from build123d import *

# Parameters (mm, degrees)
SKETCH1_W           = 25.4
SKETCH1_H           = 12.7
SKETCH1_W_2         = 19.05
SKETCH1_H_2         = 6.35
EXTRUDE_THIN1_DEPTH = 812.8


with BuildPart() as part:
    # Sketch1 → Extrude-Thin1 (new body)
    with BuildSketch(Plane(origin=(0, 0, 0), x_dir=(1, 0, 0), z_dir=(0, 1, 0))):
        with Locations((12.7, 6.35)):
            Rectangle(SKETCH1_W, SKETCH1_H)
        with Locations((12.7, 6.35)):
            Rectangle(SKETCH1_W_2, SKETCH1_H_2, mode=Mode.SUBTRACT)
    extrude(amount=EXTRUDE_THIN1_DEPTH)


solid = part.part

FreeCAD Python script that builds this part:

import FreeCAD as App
import Part
import Sketcher

V = App.Vector
Q = App.Units.Quantity

doc = App.newDocument("Part")
params = doc.addObject("Spreadsheet::Sheet", "Params")
for row, (alias, value) in enumerate([
    ("sketch1_width", "1 in"),
    ("sketch1_height", "0.5 in"),
    ("sketch1_width2", "0.75 in"),
    ("sketch1_height2", "0.25 in"),
    ("pad1_length", "32 in"),
], start=1):
    params.set(f"A{row}", alias)
    params.set(f"B{row}", "=" + value)
    params.setAlias(f"B{row}", alias)

body = doc.addObject("PartDesign::Body", "Body")

sketch1 = body.newObject("Sketcher::SketchObject", "Sketch")
sketch1.AttachmentSupport = (doc.getObject("XZ_Plane"), [""])
sketch1.MapMode = "FlatFace"
sketch1.addGeometry([
    Part.LineSegment(V(0, -13, 0), V(0, 0, 0)),
    Part.LineSegment(V(0, 0, 0), V(25, 0, 0)),
    Part.LineSegment(V(25, 0, 0), V(25, -13, 0)),
    Part.LineSegment(V(25, -13, 0), V(0, -13, 0)),
    Part.LineSegment(V(22, -3, 0), V(3, -3, 0)),
    Part.LineSegment(V(3, -3, 0), V(3, -10, 0)),
    Part.LineSegment(V(3, -10, 0), V(22, -10, 0)),
    Part.LineSegment(V(22, -10, 0), V(22, -3, 0)),
], False)
sketch1.addConstraint([
    Sketcher.Constraint("Coincident", 0, 2, 1, 1),
    Sketcher.Constraint("Coincident", 1, 2, 2, 1),
    Sketcher.Constraint("Coincident", 2, 2, 3, 1),
    Sketcher.Constraint("Coincident", 3, 2, 0, 1),
    Sketcher.Constraint("Coincident", 4, 2, 5, 1),
    Sketcher.Constraint("Coincident", 5, 2, 6, 1),
    Sketcher.Constraint("Coincident", 6, 2, 7, 1),
    Sketcher.Constraint("Coincident", 7, 2, 4, 1),
    Sketcher.Constraint("Vertical", 0),
    Sketcher.Constraint("Horizontal", 1),
    Sketcher.Constraint("Vertical", 2),
    Sketcher.Constraint("Horizontal", 3),
    Sketcher.Constraint("Horizontal", 4),
    Sketcher.Constraint("Vertical", 5),
    Sketcher.Constraint("Horizontal", 6),
    Sketcher.Constraint("Vertical", 7),
    Sketcher.Constraint("Coincident", 0, 2, -1, 1),
    Sketcher.Constraint("DistanceX", 1, 1, 1, 2, Q("1 in")),
    Sketcher.Constraint("DistanceY", 0, 1, 0, 2, Q("0.5 in")),
    Sketcher.Constraint("DistanceX", 4, 2, 4, 1, Q("0.75 in")),
    Sketcher.Constraint("DistanceY", 5, 2, 5, 1, Q("0.25 in")),
    Sketcher.Constraint("DistanceX", -1, 1, 4, 2, Q("0.125 in")),
    Sketcher.Constraint("DistanceY", 4, 2, -1, 1, Q("0.125 in")),
])
sketch1.setExpression("Constraints[17]", "Params.sketch1_width")
sketch1.setExpression("Constraints[18]", "Params.sketch1_height")
sketch1.setExpression("Constraints[19]", "Params.sketch1_width2")
sketch1.setExpression("Constraints[20]", "Params.sketch1_height2")
pad1 = body.newObject("PartDesign::Pad", "Pad")
pad1.Profile = sketch1
pad1.setExpression("Length", "Params.pad1_length")
pad1.Reversed = True

doc.recompute()
